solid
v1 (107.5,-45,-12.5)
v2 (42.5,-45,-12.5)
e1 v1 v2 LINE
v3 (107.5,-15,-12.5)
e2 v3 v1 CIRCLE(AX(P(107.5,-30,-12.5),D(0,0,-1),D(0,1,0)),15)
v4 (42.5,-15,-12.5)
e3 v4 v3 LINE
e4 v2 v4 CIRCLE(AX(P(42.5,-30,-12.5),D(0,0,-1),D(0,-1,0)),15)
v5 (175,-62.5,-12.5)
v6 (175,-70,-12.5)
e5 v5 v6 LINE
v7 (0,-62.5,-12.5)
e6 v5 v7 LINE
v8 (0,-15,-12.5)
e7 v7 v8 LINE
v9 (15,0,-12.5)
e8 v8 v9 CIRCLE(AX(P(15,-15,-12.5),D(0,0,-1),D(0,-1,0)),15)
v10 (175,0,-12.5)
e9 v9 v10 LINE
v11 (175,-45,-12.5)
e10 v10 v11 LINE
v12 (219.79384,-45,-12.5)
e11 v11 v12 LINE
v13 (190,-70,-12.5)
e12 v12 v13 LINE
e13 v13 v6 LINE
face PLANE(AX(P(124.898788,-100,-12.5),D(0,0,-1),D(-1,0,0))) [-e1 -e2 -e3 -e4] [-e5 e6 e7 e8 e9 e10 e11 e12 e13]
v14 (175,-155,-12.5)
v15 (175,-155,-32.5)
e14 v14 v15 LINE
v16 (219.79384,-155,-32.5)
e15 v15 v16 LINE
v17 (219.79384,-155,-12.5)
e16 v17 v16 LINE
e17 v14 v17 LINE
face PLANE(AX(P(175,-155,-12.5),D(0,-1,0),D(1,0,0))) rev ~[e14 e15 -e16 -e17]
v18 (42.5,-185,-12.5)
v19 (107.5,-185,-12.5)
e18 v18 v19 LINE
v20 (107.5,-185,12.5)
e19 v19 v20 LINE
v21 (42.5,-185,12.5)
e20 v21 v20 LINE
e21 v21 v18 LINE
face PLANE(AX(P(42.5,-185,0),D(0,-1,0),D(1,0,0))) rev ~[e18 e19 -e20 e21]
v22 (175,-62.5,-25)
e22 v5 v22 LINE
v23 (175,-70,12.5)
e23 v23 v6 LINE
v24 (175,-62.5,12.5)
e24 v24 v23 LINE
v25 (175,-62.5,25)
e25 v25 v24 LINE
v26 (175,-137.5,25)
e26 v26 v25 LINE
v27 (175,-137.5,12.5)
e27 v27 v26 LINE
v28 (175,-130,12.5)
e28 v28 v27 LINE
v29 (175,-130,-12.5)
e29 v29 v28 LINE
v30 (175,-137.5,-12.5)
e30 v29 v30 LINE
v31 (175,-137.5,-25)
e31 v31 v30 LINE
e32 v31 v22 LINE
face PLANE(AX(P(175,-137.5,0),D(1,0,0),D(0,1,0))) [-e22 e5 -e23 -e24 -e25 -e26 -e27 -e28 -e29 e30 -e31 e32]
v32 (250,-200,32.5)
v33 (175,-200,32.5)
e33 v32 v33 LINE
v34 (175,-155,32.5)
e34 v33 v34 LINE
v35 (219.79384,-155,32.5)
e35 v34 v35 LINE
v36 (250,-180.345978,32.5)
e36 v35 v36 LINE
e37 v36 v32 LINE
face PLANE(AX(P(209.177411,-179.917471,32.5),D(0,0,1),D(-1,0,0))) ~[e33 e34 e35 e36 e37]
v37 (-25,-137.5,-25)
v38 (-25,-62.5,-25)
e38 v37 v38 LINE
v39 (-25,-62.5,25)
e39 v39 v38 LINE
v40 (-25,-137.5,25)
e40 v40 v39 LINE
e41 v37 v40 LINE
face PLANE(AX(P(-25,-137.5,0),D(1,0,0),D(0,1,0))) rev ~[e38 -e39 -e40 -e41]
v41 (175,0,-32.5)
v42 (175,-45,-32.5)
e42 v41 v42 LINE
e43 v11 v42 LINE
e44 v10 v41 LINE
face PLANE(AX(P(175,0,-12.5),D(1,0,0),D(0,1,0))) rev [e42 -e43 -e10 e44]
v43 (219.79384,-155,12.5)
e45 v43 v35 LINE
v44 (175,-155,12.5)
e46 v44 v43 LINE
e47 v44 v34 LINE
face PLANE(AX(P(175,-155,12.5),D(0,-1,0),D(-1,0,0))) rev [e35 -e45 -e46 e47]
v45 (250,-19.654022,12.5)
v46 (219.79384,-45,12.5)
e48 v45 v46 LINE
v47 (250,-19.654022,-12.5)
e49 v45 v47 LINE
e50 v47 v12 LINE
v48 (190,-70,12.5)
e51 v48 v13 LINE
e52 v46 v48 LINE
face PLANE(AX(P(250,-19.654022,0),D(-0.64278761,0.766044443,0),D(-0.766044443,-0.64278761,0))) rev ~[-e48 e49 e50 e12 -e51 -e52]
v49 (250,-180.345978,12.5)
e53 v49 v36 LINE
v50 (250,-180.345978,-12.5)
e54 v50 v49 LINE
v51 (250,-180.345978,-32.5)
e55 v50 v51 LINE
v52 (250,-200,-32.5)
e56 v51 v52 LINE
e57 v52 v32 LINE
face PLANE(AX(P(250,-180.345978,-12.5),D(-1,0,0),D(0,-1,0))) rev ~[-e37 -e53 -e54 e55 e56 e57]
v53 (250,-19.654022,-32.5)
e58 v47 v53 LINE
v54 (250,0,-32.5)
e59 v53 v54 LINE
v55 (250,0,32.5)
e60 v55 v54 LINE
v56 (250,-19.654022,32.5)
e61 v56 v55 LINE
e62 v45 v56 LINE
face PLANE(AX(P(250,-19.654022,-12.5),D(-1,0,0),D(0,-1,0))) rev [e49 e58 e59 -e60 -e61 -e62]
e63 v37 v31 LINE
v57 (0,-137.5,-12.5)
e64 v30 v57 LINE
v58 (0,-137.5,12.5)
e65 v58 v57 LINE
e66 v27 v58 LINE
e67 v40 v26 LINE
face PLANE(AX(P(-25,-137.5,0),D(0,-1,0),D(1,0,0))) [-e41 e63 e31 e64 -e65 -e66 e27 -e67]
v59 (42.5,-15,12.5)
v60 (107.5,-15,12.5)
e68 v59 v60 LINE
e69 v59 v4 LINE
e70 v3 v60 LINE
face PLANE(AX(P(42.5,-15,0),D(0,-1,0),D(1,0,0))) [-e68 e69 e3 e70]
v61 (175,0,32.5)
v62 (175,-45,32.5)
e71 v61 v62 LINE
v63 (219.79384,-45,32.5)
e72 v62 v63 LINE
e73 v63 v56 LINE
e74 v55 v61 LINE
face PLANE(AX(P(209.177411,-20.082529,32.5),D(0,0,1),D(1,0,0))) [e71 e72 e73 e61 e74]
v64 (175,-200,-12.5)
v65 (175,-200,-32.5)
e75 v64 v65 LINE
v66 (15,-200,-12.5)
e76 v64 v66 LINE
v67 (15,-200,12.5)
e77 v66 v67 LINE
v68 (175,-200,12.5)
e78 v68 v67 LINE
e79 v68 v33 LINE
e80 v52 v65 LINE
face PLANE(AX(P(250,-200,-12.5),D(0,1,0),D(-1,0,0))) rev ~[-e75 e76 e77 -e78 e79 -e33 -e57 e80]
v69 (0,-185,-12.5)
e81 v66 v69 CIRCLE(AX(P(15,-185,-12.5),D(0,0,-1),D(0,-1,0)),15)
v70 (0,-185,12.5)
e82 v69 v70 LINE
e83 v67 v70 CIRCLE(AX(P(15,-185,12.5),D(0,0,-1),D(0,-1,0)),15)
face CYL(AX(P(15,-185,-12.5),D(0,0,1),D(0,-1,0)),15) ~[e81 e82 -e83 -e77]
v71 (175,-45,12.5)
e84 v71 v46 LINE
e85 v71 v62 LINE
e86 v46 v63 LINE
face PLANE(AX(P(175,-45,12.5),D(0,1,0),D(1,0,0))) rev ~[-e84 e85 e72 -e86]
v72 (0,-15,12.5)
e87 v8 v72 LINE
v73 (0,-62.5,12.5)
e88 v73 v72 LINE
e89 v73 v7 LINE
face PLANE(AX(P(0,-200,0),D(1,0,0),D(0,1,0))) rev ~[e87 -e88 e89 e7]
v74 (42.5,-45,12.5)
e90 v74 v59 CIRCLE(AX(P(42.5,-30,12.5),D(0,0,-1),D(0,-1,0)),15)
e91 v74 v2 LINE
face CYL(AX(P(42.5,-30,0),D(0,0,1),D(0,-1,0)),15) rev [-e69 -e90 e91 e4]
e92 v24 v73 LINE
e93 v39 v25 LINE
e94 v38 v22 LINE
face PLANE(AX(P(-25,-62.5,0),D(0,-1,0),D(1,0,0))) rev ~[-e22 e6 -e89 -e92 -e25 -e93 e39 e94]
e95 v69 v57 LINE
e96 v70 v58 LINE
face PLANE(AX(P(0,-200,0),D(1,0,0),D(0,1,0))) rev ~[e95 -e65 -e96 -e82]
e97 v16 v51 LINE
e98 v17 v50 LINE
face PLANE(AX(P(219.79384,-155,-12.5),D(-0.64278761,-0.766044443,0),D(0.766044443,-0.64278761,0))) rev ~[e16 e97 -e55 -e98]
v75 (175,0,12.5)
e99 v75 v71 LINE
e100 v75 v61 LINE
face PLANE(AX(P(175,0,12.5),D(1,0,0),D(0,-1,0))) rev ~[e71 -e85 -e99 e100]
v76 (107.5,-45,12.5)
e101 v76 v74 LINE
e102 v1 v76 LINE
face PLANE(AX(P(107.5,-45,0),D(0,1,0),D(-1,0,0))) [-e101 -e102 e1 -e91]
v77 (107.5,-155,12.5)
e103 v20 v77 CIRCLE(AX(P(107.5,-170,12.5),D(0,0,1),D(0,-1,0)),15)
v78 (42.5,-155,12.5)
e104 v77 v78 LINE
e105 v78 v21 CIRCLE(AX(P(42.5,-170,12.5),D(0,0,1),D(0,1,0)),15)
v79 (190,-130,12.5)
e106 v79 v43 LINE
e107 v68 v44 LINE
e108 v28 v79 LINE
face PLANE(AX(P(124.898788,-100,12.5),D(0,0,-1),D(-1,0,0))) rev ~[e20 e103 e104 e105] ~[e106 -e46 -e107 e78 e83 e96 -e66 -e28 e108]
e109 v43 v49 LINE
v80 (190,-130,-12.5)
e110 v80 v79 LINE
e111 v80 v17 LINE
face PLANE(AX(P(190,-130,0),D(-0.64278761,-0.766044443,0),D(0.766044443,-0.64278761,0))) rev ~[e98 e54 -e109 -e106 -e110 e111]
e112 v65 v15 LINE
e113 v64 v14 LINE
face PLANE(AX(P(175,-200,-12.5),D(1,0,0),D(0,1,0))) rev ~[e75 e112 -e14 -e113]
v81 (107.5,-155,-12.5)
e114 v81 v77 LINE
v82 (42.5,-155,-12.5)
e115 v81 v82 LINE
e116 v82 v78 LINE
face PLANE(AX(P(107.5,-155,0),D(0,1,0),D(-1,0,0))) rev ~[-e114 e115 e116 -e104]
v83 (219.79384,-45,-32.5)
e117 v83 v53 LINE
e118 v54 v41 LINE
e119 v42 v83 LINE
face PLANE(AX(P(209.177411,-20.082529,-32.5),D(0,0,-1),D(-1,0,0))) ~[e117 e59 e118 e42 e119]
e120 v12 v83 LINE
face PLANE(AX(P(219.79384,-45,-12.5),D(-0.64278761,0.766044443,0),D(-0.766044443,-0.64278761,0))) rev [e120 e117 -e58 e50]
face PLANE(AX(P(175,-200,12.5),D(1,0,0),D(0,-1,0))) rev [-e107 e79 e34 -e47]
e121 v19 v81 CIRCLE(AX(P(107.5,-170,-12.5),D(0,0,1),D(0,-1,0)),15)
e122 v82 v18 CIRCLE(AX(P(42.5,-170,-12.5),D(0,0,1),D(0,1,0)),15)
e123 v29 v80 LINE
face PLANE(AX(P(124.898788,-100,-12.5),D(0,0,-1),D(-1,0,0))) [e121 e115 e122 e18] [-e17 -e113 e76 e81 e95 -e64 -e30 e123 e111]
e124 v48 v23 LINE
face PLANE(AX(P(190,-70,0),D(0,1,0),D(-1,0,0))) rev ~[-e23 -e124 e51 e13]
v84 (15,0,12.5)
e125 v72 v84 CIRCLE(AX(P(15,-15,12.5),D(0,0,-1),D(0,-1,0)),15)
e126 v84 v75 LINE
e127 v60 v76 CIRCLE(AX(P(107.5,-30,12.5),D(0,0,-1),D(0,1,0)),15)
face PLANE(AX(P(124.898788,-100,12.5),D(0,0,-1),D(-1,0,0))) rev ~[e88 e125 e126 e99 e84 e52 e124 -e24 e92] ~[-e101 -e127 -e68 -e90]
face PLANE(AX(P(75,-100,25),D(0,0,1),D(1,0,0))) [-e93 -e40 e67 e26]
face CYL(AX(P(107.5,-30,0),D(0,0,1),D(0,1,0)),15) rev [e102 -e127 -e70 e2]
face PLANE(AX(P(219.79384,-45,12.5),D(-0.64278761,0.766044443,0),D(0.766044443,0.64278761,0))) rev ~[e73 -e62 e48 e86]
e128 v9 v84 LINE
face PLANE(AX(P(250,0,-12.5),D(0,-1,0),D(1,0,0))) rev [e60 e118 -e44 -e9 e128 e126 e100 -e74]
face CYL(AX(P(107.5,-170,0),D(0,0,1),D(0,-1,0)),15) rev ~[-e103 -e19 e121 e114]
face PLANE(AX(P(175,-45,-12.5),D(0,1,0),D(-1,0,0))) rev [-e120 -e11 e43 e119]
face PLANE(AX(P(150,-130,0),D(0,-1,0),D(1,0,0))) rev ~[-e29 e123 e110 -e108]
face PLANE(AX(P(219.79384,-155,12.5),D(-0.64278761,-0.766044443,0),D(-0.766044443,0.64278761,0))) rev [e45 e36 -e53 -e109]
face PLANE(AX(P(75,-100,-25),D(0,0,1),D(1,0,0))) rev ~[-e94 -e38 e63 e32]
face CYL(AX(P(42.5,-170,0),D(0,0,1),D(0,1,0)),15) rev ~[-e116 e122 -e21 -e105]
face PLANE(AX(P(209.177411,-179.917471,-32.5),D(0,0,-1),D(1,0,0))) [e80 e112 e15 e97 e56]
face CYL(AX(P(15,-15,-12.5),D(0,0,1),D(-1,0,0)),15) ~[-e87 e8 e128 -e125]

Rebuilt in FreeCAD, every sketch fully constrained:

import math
import FreeCAD as App
import Part
import Sketcher

V = App.Vector
Q = App.Units.Quantity


def edges_at(feature, points):
    """Names of the edges that pass closest to the given points."""
    edges = feature.Shape.Edges
    near = lambda p: min(range(len(edges)), key=lambda i: edges[i].distToShape(Part.Vertex(*p))[0])
    return sorted({f"Edge{near(p) + 1}" for p in points})

doc = App.newDocument("Part")
body = doc.addObject("PartDesign::Body", "Body")

sketch1 = body.newObject("Sketcher::SketchObject", "Sketch")
sketch1.AttachmentSupport = (doc.getObject("XY_Plane"), [""])
sketch1.MapMode = "FlatFace"
sketch1.addGeometry(Part.LineSegment(V(250, 0, 0), V(0, 0, 0)), False)
sketch1.addGeometry(Part.LineSegment(V(0, 0, 0), V(0, -200, 0)), False)
sketch1.addGeometry(Part.LineSegment(V(0, -200, 0), V(250, -200, 0)), False)
sketch1.addGeometry(Part.LineSegment(V(250, -200, 0), V(250, -180, 0)), False)
sketch1.addGeometry(Part.LineSegment(V(250, -180, 0), V(190, -130, 0)), False)
sketch1.addGeometry(Part.LineSegment(V(190, -130, 0), V(150, -130, 0)), False)
sketch1.addGeometry(Part.LineSegment(V(150, -130, 0), V(150, -70, 0)), False)
sketch1.addGeometry(Part.LineSegment(V(150, -70, 0), V(190, -70, 0)), False)
sketch1.addGeometry(Part.LineSegment(V(190, -70, 0), V(250, -20, 0)), False)
sketch1.addGeometry(Part.LineSegment(V(250, -20, 0), V(250, 0, 0)), False)
sketch1.addGeometry(Part.ArcOfCircle(Part.Circle(V(42, -170, 0), V(0, 0, 1), 15), math.radians(90), math.radians(270)), False)
sketch1.addGeometry(Part.LineSegment(V(42, -155, 0), V(108, -155, 0)), False)
sketch1.addGeometry(Part.ArcOfCircle(Part.Circle(V(108, -170, 0), V(0, 0, 1), 15), math.radians(-90), math.radians(90)), False)
sketch1.addGeometry(Part.LineSegment(V(108, -185, 0), V(42, -185, 0)), False)
sketch1.addGeometry(Part.LineSegment(V(42, -15, 0), V(108, -15, 0)), False)
sketch1.addGeometry(Part.ArcOfCircle(Part.Circle(V(108, -30, 0), V(0, 0, 1), 15), math.radians(-90), math.radians(90)), False)
sketch1.addGeometry(Part.LineSegment(V(108, -45, 0), V(42, -45, 0)), False)
sketch1.addGeometry(Part.ArcOfCircle(Part.Circle(V(42, -30, 0), V(0, 0, 1), 15), math.radians(90), math.radians(270)), False)
sketch1.addConstraint(Sketcher.Constraint("Coincident", 0, 2, 1, 1))
sketch1.addConstraint(Sketcher.Constraint("Coincident", 1, 2, 2, 1))
sketch1.addConstraint(Sketcher.Constraint("Coincident", 2, 2, 3, 1))
sketch1.addConstraint(Sketcher.Constraint("Coincident", 3, 2, 4, 1))
sketch1.addConstraint(Sketcher.Constraint("Coincident", 4, 2, 5, 1))
sketch1.addConstraint(Sketcher.Constraint("Coincident", 5, 2, 6, 1))
sketch1.addConstraint(Sketcher.Constraint("Coincident", 6, 2, 7, 1))
sketch1.addConstraint(Sketcher.Constraint("Coincident", 7, 2, 8, 1))
sketch1.addConstraint(Sketcher.Constraint("Coincident", 8, 2, 9, 1))
sketch1.addConstraint(Sketcher.Constraint("Coincident", 9, 2, 0, 1))
sketch1.addConstraint(Sketcher.Constraint("Tangent", 10, 1, 11, 1))
sketch1.addConstraint(Sketcher.Constraint("Tangent", 11, 2, 12, 2))
sketch1.addConstraint(Sketcher.Constraint("Tangent", 12, 1, 13, 1))
sketch1.addConstraint(Sketcher.Constraint("Tangent", 13, 2, 10, 2))
sketch1.addConstraint(Sketcher.Constraint("Tangent", 14, 2, 15, 2))
sketch1.addConstraint(Sketcher.Constraint("Tangent", 15, 1, 16, 1))
sketch1.addConstraint(Sketcher.Constraint("Tangent", 16, 2, 17, 2))
sketch1.addConstraint(Sketcher.Constraint("Tangent", 17, 1, 14, 1))
sketch1.addConstraint(Sketcher.Constraint("Horizontal", 0))
sketch1.addConstraint(Sketcher.Constraint("Vertical", 1))
sketch1.addConstraint(Sketcher.Constraint("Horizontal", 2))
sketch1.addConstraint(Sketcher.Constraint("Vertical", 3))
sketch1.addConstraint(Sketcher.Constraint("Horizontal", 5))
sketch1.addConstraint(Sketcher.Constraint("Vertical", 6))
sketch1.addConstraint(Sketcher.Constraint("Horizontal", 7))
sketch1.addConstraint(Sketcher.Constraint("Vertical", 9))
sketch1.addConstraint(Sketcher.Constraint("Horizontal", 11))
sketch1.addConstraint(Sketcher.Constraint("Horizontal", 13))
sketch1.addConstraint(Sketcher.Constraint("Horizontal", 14))
sketch1.addConstraint(Sketcher.Constraint("Horizontal", 16))
sketch1.addConstraint(Sketcher.Constraint("Coincident", 0, 2, -1, 1))
sketch1.addConstraint(Sketcher.Constraint("Equal", 12, 15))
sketch1.addConstraint(Sketcher.Constraint("Vertical", 12, 3, 15, 3))
sketch1.addConstraint(Sketcher.Constraint("Vertical", 10, 3, 17, 3))
sketch1.addConstraint(Sketcher.Constraint("Vertical", 4, 2, 7, 2))
sketch1.addConstraint(Sketcher.Constraint("Vertical", 3, 2, 8, 2))
sketch1.addConstraint(Sketcher.Constraint("Equal", 3, 9))
sketch1.addConstraint(Sketcher.Constraint("Equal", 4, 8))
sketch1.addConstraint(Sketcher.Constraint("Radius", 10, 15.0))
sketch1.addConstraint(Sketcher.Constraint("DistanceX", 0, 2, 0, 1, 250.0))
sketch1.addConstraint(Sketcher.Constraint("DistanceX", 5, 2, 5, 1, 40.0))
sketch1.addConstraint(Sketcher.Constraint("DistanceX", 11, 1, 11, 2, 65.0))
sketch1.addConstraint(Sketcher.Constraint("DistanceY", 1, 2, 1, 1, 200.0))
sketch1.addConstraint(Sketcher.Constraint("DistanceY", 6, 1, 6, 2, 60.0))
sketch1.addConstraint(Sketcher.Constraint("Angle", 4, Q("140 deg")))
sketch1.addConstraint(Sketcher.Constraint("DistanceY", 10, 3, -1, 1, 170.0))
sketch1.addConstraint(Sketcher.Constraint("DistanceY", 15, 3, -1, 1, 30.0))
sketch1.addConstraint(Sketcher.Constraint("DistanceX", -1, 1, 4, 2, 190.0))
sketch1.addConstraint(Sketcher.Constraint("DistanceX", -1, 1, 10, 3, 42.5))
pad1 = body.newObject("PartDesign::Pad", "Pad")
pad1.Profile = sketch1
pad1.Length = 25
pad1.Midplane = True

sketch2 = body.newObject("Sketcher::SketchObject", "Sketch001")
sketch2.AttachmentSupport = (doc.getObject("XY_Plane"), [""])
sketch2.MapMode = "FlatFace"
sketch2.addGeometry(Part.LineSegment(V(-25, -62, 0), V(-25, -138, 0)), False)
sketch2.addGeometry(Part.LineSegment(V(-25, -138, 0), V(175, -138, 0)), False)
sketch2.addGeometry(Part.LineSegment(V(175, -138, 0), V(175, -62, 0)), False)
sketch2.addGeometry(Part.LineSegment(V(175, -62, 0), V(-25, -62, 0)), False)
sketch2.addConstraint(Sketcher.Constraint("Coincident", 0, 2, 1, 1))
sketch2.addConstraint(Sketcher.Constraint("Coincident", 1, 2, 2, 1))
sketch2.addConstraint(Sketcher.Constraint("Coincident", 2, 2, 3, 1))
sketch2.addConstraint(Sketcher.Constraint("Coincident", 3, 2, 0, 1))
sketch2.addConstraint(Sketcher.Constraint("Vertical", 0))
sketch2.addConstraint(Sketcher.Constraint("Horizontal", 1))
sketch2.addConstraint(Sketcher.Constraint("Vertical", 2))
sketch2.addConstraint(Sketcher.Constraint("Horizontal", 3))
sketch2.addConstraint(Sketcher.Constraint("DistanceX", 1, 1, 1, 2, 200.0))
sketch2.addConstraint(Sketcher.Constraint("DistanceY", 0, 2, 0, 1, 75.0))
sketch2.addConstraint(Sketcher.Constraint("DistanceX", 0, 2, -1, 1, 25.0))
sketch2.addConstraint(Sketcher.Constraint("DistanceY", 0, 2, -1, 1, 137.5))
pad2 = body.newObject("PartDesign::Pad", "Pad001")
pad2.Profile = sketch2
pad2.Length = 50
pad2.Midplane = True

sketch3 = body.newObject("Sketcher::SketchObject", "Sketch002")
sketch3.AttachmentSupport = (doc.getObject("XY_Plane"), [""])
sketch3.MapMode = "FlatFace"
sketch3.AttachmentOffset = App.Placement(V(0, 0, 12.5), App.Rotation())
sketch3.addGeometry(Part.LineSegment(V(250, 0, 0), V(175, 0, 0)), False)
sketch3.addGeometry(Part.LineSegment(V(175, 0, 0), V(175, -45, 0)), False)
sketch3.addGeometry(Part.LineSegment(V(175, -45, 0), V(220, -45, 0)), False)
sketch3.addGeometry(Part.LineSegment(V(220, -45, 0), V(250, -20, 0)), False)
sketch3.addGeometry(Part.LineSegment(V(250, -20, 0), V(250, 0, 0)), False)
sketch3.addConstraint(Sketcher.Constraint("Coincident", 0, 2, 1, 1))
sketch3.addConstraint(Sketcher.Constraint("Coincident", 1, 2, 2, 1))
sketch3.addConstraint(Sketcher.Constraint("Coincident", 2, 2, 3, 1))
sketch3.addConstraint(Sketcher.Constraint("Coincident", 3, 2, 4, 1))
sketch3.addConstraint(Sketcher.Constraint("Coincident", 4, 2, 0, 1))
sketch3.addConstraint(Sketcher.Constraint("Horizontal", 0))
sketch3.addConstraint(Sketcher.Constraint("Vertical", 1))
sketch3.addConstraint(Sketcher.Constraint("Horizontal", 2))
sketch3.addConstraint(Sketcher.Constraint("Vertical", 4))
sketch3.addConstraint(Sketcher.Constraint("PointOnObject", 0, 2, -1))
sketch3.addConstraint(Sketcher.Constraint("DistanceX", 0, 2, 0, 1, 75.0))
sketch3.addConstraint(Sketcher.Constraint("DistanceY", 1, 2, 1, 1, 45.0))
sketch3.addConstraint(Sketcher.Constraint("Angle", 3, Q("40 deg")))
sketch3.addConstraint(Sketcher.Constraint("DistanceX", -1, 1, 0, 2, 175.0))
sketch3.addConstraint(Sketcher.Constraint("DistanceX", 2, 1, 2, 2, 44.79384))
pad3 = body.newObject("PartDesign::Pad", "Pad002")
pad3.Profile = sketch3
pad3.Length = 20
doc.recompute()

datumplane = body.newObject("PartDesign::Plane", "DatumPlane")
datumplane.AttachmentSupport = (doc.getObject("XZ_Plane"), [""])
datumplane.MapMode = "FlatFace"
datumplane.AttachmentOffset = App.Placement(V(0, 0, 100), App.Rotation())
mirrored = body.newObject("PartDesign::Mirrored", "Mirrored")
mirrored.Originals = [pad3]
mirrored.MirrorPlane = (datumplane, [""])
body.Tip = mirrored
doc.recompute()

mirrored2 = body.newObject("PartDesign::Mirrored", "Mirrored001")
mirrored2.Originals = [pad3]
mirrored2.MirrorPlane = (doc.getObject("XY_Plane"), [""])
body.Tip = mirrored2

sketch4 = body.newObject("Sketcher::SketchObject", "Sketch003")
sketch4.AttachmentSupport = (doc.getObject("XY_Plane"), [""])
sketch4.MapMode = "FlatFace"
sketch4.AttachmentOffset = App.Placement(V(0, 0, -12.5), App.Rotation())
sketch4.addGeometry(Part.LineSegment(V(250, -200, 0), V(175, -200, 0)), False)
sketch4.addGeometry(Part.LineSegment(V(175, -200, 0), V(175, -155, 0)), False)
sketch4.addGeometry(Part.LineSegment(V(175, -155, 0), V(220, -155, 0)), False)
sketch4.addGeometry(Part.LineSegment(V(220, -155, 0), V(250, -180, 0)), False)
sketch4.addGeometry(Part.LineSegment(V(250, -180, 0), V(250, -200, 0)), False)
sketch4.addConstraint(Sketcher.Constraint("Coincident", 0, 2, 1, 1))
sketch4.addConstraint(Sketcher.Constraint("Coincident", 1, 2, 2, 1))
sketch4.addConstraint(Sketcher.Constraint("Coincident", 2, 2, 3, 1))
sketch4.addConstraint(Sketcher.Constraint("Coincident", 3, 2, 4, 1))
sketch4.addConstraint(Sketcher.Constraint("Coincident", 4, 2, 0, 1))
sketch4.addConstraint(Sketcher.Constraint("Horizontal", 0))
sketch4.addConstraint(Sketcher.Constraint("Vertical", 1))
sketch4.addConstraint(Sketcher.Constraint("Horizontal", 2))
sketch4.addConstraint(Sketcher.Constraint("Vertical", 4))
sketch4.addConstraint(Sketcher.Constraint("DistanceX", 0, 2, 0, 1, 75.0))
sketch4.addConstraint(Sketcher.Constraint("DistanceY", 1, 1, 1, 2, 45.0))
sketch4.addConstraint(Sketcher.Constraint("Angle", 3, Q("-40 deg")))
sketch4.addConstraint(Sketcher.Constraint("DistanceX", -1, 1, 0, 2, 175.0))
sketch4.addConstraint(Sketcher.Constraint("DistanceY", 0, 2, -1, 1, 200.0))
sketch4.addConstraint(Sketcher.Constraint("DistanceX", 2, 1, 2, 2, 44.79384))
pad4 = body.newObject("PartDesign::Pad", "Pad003")
pad4.Profile = sketch4
pad4.Length = 20
pad4.Reversed = True
doc.recompute()

fillet = body.newObject("PartDesign::Fillet", "Fillet")
fillet.Base = (pad4, edges_at(pad4, [(0, 0, 0), (0, -200, 0)]))
fillet.Radius = 15

doc.recompute()
